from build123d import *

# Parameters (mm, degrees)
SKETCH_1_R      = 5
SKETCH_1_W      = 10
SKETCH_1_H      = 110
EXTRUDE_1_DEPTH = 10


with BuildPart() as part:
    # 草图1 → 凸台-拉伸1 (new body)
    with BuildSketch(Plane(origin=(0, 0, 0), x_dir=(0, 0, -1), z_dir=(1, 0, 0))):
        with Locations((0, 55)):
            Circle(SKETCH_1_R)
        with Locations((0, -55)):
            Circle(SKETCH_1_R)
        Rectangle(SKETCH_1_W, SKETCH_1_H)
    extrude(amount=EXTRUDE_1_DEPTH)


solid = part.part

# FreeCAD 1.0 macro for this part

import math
import FreeCAD as App
import Part
import Sketcher
from FreeCAD import Vector
Q = App.Units.Quantity

doc = App.newDocument("Part")
body = doc.addObject("PartDesign::Body", "Body")

# Sketch on YZ plane
sketch1 = body.newObject("Sketcher::SketchObject", "Sketch")
sketch1.AttachmentSupport = (doc.getObject("YZ_Plane"), [""])
sketch1.MapMode = "FlatFace"
sketch1.addGeometry([
    Part.ArcOfCircle(Part.Circle(Vector(55, 0, 0), Vector(0, 0, 1), 5), math.radians(-90), math.radians(90)),
    Part.LineSegment(Vector(55, 5, 0), Vector(-55, 5, 0)),
    Part.ArcOfCircle(Part.Circle(Vector(-55, 0, 0), Vector(0, 0, 1), 5), math.radians(90), math.radians(270)),
    Part.LineSegment(Vector(-55, -5, 0), Vector(55, -5, 0)),
], False)
sketch1.addConstraint([
    Sketcher.Constraint("Tangent", 0, 2, 1, 1),
    Sketcher.Constraint("Tangent", 1, 2, 2, 1),
    Sketcher.Constraint("Tangent", 2, 2, 3, 1),
    Sketcher.Constraint("Tangent", 3, 2, 0, 1),
    Sketcher.Constraint("Horizontal", 1),
    Sketcher.Constraint("Horizontal", 3),
    Sketcher.Constraint("Symmetric", 0, 3, 2, 3, -1, 1),
    Sketcher.Constraint("Radius", 0, Q("5 mm")),
    Sketcher.Constraint("DistanceX", 1, 2, 1, 1, Q("110 mm")),
])
pad1 = body.newObject("PartDesign::Pad", "Pad")
pad1.Profile = sketch1
pad1.Length = 10

doc.recompute()
